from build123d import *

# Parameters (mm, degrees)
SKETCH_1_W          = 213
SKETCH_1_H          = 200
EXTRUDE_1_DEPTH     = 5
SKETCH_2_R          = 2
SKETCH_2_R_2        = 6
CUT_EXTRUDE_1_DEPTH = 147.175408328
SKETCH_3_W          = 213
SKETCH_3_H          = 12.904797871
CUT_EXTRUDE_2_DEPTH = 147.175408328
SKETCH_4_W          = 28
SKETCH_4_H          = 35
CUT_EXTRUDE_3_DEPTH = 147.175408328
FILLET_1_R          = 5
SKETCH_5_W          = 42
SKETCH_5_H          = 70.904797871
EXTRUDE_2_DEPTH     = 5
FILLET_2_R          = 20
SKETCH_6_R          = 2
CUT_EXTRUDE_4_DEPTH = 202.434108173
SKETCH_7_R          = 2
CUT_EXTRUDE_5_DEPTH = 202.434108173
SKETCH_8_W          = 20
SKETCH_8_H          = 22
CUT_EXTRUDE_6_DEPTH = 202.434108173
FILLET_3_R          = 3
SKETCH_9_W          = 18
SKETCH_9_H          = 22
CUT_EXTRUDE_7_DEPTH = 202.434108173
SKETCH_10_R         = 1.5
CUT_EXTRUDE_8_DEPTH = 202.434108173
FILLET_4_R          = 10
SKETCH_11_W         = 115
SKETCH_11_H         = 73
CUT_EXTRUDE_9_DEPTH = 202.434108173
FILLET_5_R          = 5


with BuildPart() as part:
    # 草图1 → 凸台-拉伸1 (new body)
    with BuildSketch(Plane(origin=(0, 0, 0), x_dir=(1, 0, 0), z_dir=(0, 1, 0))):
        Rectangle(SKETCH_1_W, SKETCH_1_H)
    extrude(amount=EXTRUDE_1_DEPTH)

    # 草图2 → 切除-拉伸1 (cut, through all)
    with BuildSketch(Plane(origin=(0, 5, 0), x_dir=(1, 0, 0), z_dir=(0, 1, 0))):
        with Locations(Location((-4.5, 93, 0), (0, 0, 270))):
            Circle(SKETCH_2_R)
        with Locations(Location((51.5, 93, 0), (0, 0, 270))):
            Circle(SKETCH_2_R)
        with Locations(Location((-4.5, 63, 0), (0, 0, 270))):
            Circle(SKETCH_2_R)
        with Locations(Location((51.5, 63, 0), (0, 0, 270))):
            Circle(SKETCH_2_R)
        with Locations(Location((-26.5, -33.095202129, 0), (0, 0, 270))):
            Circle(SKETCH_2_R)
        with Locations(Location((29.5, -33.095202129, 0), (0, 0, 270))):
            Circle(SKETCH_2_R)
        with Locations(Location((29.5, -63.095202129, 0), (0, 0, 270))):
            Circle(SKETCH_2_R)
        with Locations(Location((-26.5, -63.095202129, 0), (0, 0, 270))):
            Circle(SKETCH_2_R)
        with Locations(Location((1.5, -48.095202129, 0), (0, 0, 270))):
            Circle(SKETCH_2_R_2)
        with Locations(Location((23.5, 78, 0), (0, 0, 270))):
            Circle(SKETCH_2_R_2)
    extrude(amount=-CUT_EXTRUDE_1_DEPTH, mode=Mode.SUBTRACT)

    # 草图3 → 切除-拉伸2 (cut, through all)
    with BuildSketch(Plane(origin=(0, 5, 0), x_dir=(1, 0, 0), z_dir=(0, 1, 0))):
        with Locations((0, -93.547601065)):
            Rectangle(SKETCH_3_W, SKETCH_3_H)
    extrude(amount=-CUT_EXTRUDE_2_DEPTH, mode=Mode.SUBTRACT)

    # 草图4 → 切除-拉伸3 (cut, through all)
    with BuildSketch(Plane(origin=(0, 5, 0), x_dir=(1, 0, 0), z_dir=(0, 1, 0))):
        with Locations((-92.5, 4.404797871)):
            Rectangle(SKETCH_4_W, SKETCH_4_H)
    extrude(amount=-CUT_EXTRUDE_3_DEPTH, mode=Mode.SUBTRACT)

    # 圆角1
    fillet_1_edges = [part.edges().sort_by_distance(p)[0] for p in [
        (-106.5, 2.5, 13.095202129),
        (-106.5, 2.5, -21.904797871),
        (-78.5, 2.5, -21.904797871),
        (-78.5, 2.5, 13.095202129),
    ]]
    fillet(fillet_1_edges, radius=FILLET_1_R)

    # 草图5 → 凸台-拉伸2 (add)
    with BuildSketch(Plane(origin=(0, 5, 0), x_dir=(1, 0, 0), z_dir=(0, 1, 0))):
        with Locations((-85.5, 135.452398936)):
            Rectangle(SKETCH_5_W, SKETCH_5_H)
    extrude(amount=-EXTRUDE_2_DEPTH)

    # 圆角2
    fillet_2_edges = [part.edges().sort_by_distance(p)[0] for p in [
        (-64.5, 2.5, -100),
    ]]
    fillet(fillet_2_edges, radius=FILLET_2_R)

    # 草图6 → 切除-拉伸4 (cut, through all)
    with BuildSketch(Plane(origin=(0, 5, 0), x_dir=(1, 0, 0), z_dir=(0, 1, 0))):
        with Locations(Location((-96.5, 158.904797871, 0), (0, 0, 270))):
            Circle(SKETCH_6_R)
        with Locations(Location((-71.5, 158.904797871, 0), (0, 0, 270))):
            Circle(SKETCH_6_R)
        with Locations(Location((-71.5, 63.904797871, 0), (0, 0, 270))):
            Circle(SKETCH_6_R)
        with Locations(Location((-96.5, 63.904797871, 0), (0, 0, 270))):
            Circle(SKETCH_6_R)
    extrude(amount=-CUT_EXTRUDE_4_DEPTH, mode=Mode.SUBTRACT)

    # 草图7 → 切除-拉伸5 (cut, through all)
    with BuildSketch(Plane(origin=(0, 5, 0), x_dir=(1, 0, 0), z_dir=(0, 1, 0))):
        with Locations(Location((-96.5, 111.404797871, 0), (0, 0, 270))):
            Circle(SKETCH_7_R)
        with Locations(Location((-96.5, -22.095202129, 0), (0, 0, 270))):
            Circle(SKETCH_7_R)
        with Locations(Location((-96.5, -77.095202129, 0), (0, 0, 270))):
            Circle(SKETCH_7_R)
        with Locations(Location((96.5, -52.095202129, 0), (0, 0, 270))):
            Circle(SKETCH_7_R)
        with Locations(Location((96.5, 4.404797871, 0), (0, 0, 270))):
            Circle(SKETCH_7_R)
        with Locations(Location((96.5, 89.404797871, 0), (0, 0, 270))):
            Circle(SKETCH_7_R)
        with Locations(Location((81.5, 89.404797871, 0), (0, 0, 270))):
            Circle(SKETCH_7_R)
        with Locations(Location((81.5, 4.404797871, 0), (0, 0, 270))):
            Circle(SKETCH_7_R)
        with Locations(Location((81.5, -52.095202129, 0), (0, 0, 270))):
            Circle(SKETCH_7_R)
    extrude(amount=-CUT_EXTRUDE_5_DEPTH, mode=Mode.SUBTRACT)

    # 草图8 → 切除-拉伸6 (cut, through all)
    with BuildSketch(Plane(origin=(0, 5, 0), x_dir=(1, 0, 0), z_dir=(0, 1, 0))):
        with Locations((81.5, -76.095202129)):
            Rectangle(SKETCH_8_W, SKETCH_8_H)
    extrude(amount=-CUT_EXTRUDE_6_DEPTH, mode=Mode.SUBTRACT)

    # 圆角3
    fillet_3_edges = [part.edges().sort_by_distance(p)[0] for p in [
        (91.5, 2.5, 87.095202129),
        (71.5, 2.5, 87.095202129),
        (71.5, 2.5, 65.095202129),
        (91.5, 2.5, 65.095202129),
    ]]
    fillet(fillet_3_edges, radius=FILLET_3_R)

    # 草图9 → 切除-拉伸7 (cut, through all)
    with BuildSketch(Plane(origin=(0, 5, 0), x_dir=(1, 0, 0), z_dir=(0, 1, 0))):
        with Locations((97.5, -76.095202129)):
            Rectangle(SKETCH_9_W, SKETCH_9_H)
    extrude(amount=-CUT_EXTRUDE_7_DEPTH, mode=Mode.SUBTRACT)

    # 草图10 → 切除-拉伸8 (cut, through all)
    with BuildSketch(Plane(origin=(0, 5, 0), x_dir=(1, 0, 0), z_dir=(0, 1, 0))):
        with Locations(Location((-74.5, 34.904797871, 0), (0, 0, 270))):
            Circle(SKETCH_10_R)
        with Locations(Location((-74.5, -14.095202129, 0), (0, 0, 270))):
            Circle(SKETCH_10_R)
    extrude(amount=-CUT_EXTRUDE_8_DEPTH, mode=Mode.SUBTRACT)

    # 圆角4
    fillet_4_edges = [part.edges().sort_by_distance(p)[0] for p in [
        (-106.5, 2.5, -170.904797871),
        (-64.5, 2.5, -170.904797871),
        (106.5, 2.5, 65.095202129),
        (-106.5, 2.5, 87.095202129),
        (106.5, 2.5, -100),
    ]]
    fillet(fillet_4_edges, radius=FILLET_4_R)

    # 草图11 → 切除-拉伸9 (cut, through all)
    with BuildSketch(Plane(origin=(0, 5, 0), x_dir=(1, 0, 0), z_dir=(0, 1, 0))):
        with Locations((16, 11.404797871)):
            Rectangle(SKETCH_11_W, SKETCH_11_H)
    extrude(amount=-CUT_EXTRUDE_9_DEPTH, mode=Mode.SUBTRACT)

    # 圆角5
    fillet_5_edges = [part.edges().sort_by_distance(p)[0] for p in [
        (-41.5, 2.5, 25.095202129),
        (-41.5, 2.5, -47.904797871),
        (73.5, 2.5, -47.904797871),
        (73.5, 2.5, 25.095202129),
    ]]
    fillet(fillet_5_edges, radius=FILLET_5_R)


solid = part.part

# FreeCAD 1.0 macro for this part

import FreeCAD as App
import Part
import Sketcher

V = App.Vector


def edges_at(feature, points):
    """Names of the edges that pass closest to the given points."""
    edges = feature.Shape.Edges
    near = lambda p: min(range(len(edges)), key=lambda i: edges[i].distToShape(Part.Vertex(*p))[0])
    return sorted({f"Edge{near(p) + 1}" for p in points})


def add_polygon(sketch, points):
    """Adds a closed chain of lines whose ends are joined by coincident constraints."""
    first, n = sketch.GeometryCount, len(points)
    for a, b in zip(points, points[1:] + points[:1]):
        sketch.addGeometry(Part.LineSegment(App.Vector(*a, 0), App.Vector(*b, 0)), False)
    for i in range(n):
        sketch.addConstraint(Sketcher.Constraint("Coincident", first + i, 2, first + (i + 1) % n, 1))

doc = App.newDocument("Part")
body = doc.addObject("PartDesign::Body", "Body")

sketch1 = doc.addObject("Sketcher::SketchObject", "Sketch")
body.addObject(sketch1)
sketch1.AttachmentSupport = (doc.XZ_Plane, [""])
sketch1.MapMode = "FlatFace"
add_polygon(sketch1, [(-106.5, -100), (-106.5, 100), (106.5, 100), (106.5, -100)])
sketch1.addConstraint([
    Sketcher.Constraint("Vertical", 0),
    Sketcher.Constraint("Horizontal", 1),
    Sketcher.Constraint("Vertical", 2),
    Sketcher.Constraint("Horizontal", 3),
    Sketcher.Constraint("Symmetric", 0, 2, 2, 2, -1, 1),
    Sketcher.Constraint("DistanceX", 1, 1, 1, 2, 213.0),
    Sketcher.Constraint("DistanceY", 0, 1, 0, 2, 200.0),
])
pad1 = doc.addObject("PartDesign::Pad", "Pad")
body.addObject(pad1)
pad1.Profile = sketch1
pad1.Length = 5
pad1.Reversed = True

sketch2 = doc.addObject("Sketcher::SketchObject", "Sketch001")
body.addObject(sketch2)
sketch2.AttachmentSupport = (doc.XZ_Plane, [""])
sketch2.MapMode = "FlatFace"
sketch2.AttachmentOffset = App.Placement(V(0, 0, -5), App.Rotation())
sketch2.addGeometry([
    Part.Circle(V(-4.5, -93, 0), V(0, 0, 1), 2),
    Part.Circle(V(51.5, -93, 0), V(0, 0, 1), 2),
    Part.Circle(V(-4.5, -63, 0), V(0, 0, 1), 2),
    Part.Circle(V(51.5, -63, 0), V(0, 0, 1), 2),
    Part.Circle(V(-26.5, 33.095202, 0), V(0, 0, 1), 2),
    Part.Circle(V(29.5, 33.095202, 0), V(0, 0, 1), 2),
    Part.Circle(V(29.5, 63.095202, 0), V(0, 0, 1), 2),
    Part.Circle(V(-26.5, 63.095202, 0), V(0, 0, 1), 2),
    Part.Circle(V(1.5, 48.095202, 0), V(0, 0, 1), 6),
    Part.Circle(V(23.5, -78, 0), V(0, 0, 1), 6),
], False)
sketch2.addConstraint([
    Sketcher.Constraint("Equal", 0, 1),
    Sketcher.Constraint("Equal", 1, 2),
    Sketcher.Constraint("Equal", 2, 3),
    Sketcher.Constraint("Equal", 3, 4),
    Sketcher.Constraint("Equal", 4, 5),
    Sketcher.Constraint("Equal", 5, 6),
    Sketcher.Constraint("Equal", 6, 7),
    Sketcher.Constraint("Equal", 8, 9),
    Sketcher.Constraint("Horizontal", 0, 3, 1, 3),
    Sketcher.Constraint("Horizontal", 2, 3, 3, 3),
    Sketcher.Constraint("Horizontal", 4, 3, 5, 3),
    Sketcher.Constraint("Horizontal", 6, 3, 7, 3),
    Sketcher.Constraint("Vertical", 0, 3, 2, 3),
    Sketcher.Constraint("Vertical", 1, 3, 3, 3),
    Sketcher.Constraint("Vertical", 5, 3, 6, 3),
    Sketcher.Constraint("Vertical", 4, 3, 7, 3),
    Sketcher.Constraint("Diameter", 0, 4.0),
    Sketcher.Constraint("Diameter", 8, 12.0),
    Sketcher.Constraint("DistanceY", 0, 3, -1, 1, 93.0),
    Sketcher.Constraint("DistanceY", 2, 3, -1, 1, 63.0),
    Sketcher.Constraint("DistanceY", 9, 3, -1, 1, 78.0),
    Sketcher.Constraint("DistanceX", 0, 3, 1, 3, 56.0),
    Sketcher.Constraint("DistanceX", 4, 3, 2, 3, 22.0),
    Sketcher.Constraint("DistanceX", 4, 3, 5, 3, 56.0),
    Sketcher.Constraint("DistanceY", 5, 3, 6, 3, 30.0),
    Sketcher.Constraint("DistanceX", 4, 3, 8, 3, 28.0),
    Sketcher.Constraint("DistanceY", 4, 3, 8, 3, 15.0),
    Sketcher.Constraint("DistanceX", 0, 3, 9, 3, 28.0),
    Sketcher.Constraint("DistanceX", 0, 3, -1, 1, 4.5),
    Sketcher.Constraint("DistanceY", -1, 1, 4, 3, 33.095202),
])
pocket1 = doc.addObject("PartDesign::Pocket", "Pocket")
body.addObject(pocket1)
pocket1.Profile = sketch2
pocket1.Type = "ThroughAll"
pocket1.Reversed = True

sketch3 = doc.addObject("Sketcher::SketchObject", "Sketch002")
body.addObject(sketch3)
sketch3.AttachmentSupport = (doc.XZ_Plane, [""])
sketch3.MapMode = "FlatFace"
sketch3.AttachmentOffset = App.Placement(V(0, 0, -5), App.Rotation())
add_polygon(sketch3, [(-106.5, 87.095202), (-106.5, 100), (106.5, 100), (106.5, 87.095202)])
sketch3.addConstraint([
    Sketcher.Constraint("Vertical", 0),
    Sketcher.Constraint("Horizontal", 1),
    Sketcher.Constraint("Vertical", 2),
    Sketcher.Constraint("Horizontal", 3),
    Sketcher.Constraint("DistanceX", 1, 1, 1, 2, 213.0),
    Sketcher.Constraint("DistanceY", -1, 1, 0, 2, 100.0),
    Sketcher.Constraint("DistanceX", 0, 2, -1, 1, 106.5),
    Sketcher.Constraint("DistanceY", 0, 1, 0, 2, 12.904798),
])
pocket2 = doc.addObject("PartDesign::Pocket", "Pocket001")
body.addObject(pocket2)
pocket2.Profile = sketch3
pocket2.Type = "ThroughAll"
pocket2.Reversed = True

sketch4 = doc.addObject("Sketcher::SketchObject", "Sketch003")
body.addObject(sketch4)
sketch4.AttachmentSupport = (doc.XZ_Plane, [""])
sketch4.MapMode = "FlatFace"
sketch4.AttachmentOffset = App.Placement(V(0, 0, -5), App.Rotation())
add_polygon(sketch4, [(-106.5, -21.904798), (-106.5, 13.095202), (-78.5, 13.095202), (-78.5, -21.904798)])
sketch4.addConstraint([
    Sketcher.Constraint("Vertical", 0),
    Sketcher.Constraint("Horizontal", 1),
    Sketcher.Constraint("Vertical", 2),
    Sketcher.Constraint("Horizontal", 3),
    Sketcher.Constraint("DistanceX", 1, 1, 1, 2, 28.0),
    Sketcher.Constraint("DistanceY", 0, 1, 0, 2, 35.0),
    Sketcher.Constraint("DistanceX", 0, 2, -1, 1, 106.5),
    Sketcher.Constraint("DistanceY", -1, 1, 0, 2, 13.095202),
])
pocket3 = doc.addObject("PartDesign::Pocket", "Pocket002")
body.addObject(pocket3)
pocket3.Profile = sketch4
pocket3.Type = "ThroughAll"
pocket3.Reversed = True
doc.recompute()

fillet = doc.addObject("PartDesign::Fillet", "Fillet")
body.addObject(fillet)
fillet.Base = (pocket3, edges_at(pocket3, [
    (-106.5, 2.5, 13.095),
    (-106.5, 2.5, -21.905),
    (-78.5, 2.5, -21.905),
    (-78.5, 2.5, 13.095),
]))
fillet.Radius = 5

sketch5 = doc.addObject("Sketcher::SketchObject", "Sketch004")
body.addObject(sketch5)
sketch5.AttachmentSupport = (doc.XZ_Plane, [""])
sketch5.MapMode = "FlatFace"
sketch5.AttachmentOffset = App.Placement(V(0, 0, -5), App.Rotation())
add_polygon(sketch5, [(-106.5, -170.904798), (-106.5, -100), (-64.5, -100), (-64.5, -170.904798)])
sketch5.addConstraint([
    Sketcher.Constraint("Vertical", 0),
    Sketcher.Constraint("Horizontal", 1),
    Sketcher.Constraint("Vertical", 2),
    Sketcher.Constraint("Horizontal", 3),
    Sketcher.Constraint("DistanceX", 1, 1, 1, 2, 42.0),
    Sketcher.Constraint("DistanceY", 0, 2, -1, 1, 100.0),
    Sketcher.Constraint("DistanceX", 0, 2, -1, 1, 106.5),
    Sketcher.Constraint("DistanceY", 0, 1, 0, 2, 70.904798),
])
pad2 = doc.addObject("PartDesign::Pad", "Pad001")
body.addObject(pad2)
pad2.Profile = sketch5
pad2.Length = 5
doc.recompute()

fillet2 = doc.addObject("PartDesign::Fillet", "Fillet001")
body.addObject(fillet2)
fillet2.Base = (pad2, edges_at(pad2, [(-64.5, 2.5, -100)]))
fillet2.Radius = 20

sketch6 = doc.addObject("Sketcher::SketchObject", "Sketch005")
body.addObject(sketch6)
sketch6.AttachmentSupport = (doc.XZ_Plane, [""])
sketch6.MapMode = "FlatFace"
sketch6.AttachmentOffset = App.Placement(V(0, 0, -5), App.Rotation())
sketch6.addGeometry([
    Part.Circle(V(-96.5, -158.904798, 0), V(0, 0, 1), 2),
    Part.Circle(V(-71.5, -158.904798, 0), V(0, 0, 1), 2),
    Part.Circle(V(-71.5, -63.904798, 0), V(0, 0, 1), 2),
    Part.Circle(V(-96.5, -63.904798, 0), V(0, 0, 1), 2),
], False)
sketch6.addConstraint([
    Sketcher.Constraint("Equal", 0, 1),
    Sketcher.Constraint("Equal", 1, 2),
    Sketcher.Constraint("Equal", 2, 3),
    Sketcher.Constraint("Horizontal", 0, 3, 1, 3),
    Sketcher.Constraint("Horizontal", 2, 3, 3, 3),
    Sketcher.Constraint("Vertical", 1, 3, 2, 3),
    Sketcher.Constraint("Vertical", 0, 3, 3, 3),
    Sketcher.Constraint("Diameter", 0, 4.0),
    Sketcher.Constraint("DistanceX", 0, 3, 1, 3, 25.0),
    Sketcher.Constraint("DistanceY", 1, 3, 2, 3, 95.0),
    Sketcher.Constraint("DistanceX", 0, 3, -1, 1, 96.5),
    Sketcher.Constraint("DistanceY", 0, 3, -1, 1, 158.904798),
])
pocket4 = doc.addObject("PartDesign::Pocket", "Pocket003")
body.addObject(pocket4)
pocket4.Profile = sketch6
pocket4.Type = "ThroughAll"
pocket4.Reversed = True

sketch7 = doc.addObject("Sketcher::SketchObject", "Sketch006")
body.addObject(sketch7)
sketch7.AttachmentSupport = (doc.XZ_Plane, [""])
sketch7.MapMode = "FlatFace"
sketch7.AttachmentOffset = App.Placement(V(0, 0, -5), App.Rotation())
sketch7.addGeometry([
    Part.Circle(V(-96.5, -111.404798, 0), V(0, 0, 1), 2),
    Part.Circle(V(-96.5, 22.095202, 0), V(0, 0, 1), 2),
    Part.Circle(V(-96.5, 77.095202, 0), V(0, 0, 1), 2),
    Part.Circle(V(96.5, 52.095202, 0), V(0, 0, 1), 2),
    Part.Circle(V(96.5, -4.404798, 0), V(0, 0, 1), 2),
    Part.Circle(V(96.5, -89.404798, 0), V(0, 0, 1), 2),
    Part.Circle(V(81.5, -89.404798, 0), V(0, 0, 1), 2),
    Part.Circle(V(81.5, -4.404798, 0), V(0, 0, 1), 2),
    Part.Circle(V(81.5, 52.095202, 0), V(0, 0, 1), 2),
], False)
sketch7.addConstraint([
    Sketcher.Constraint("Equal", 0, 1),
    Sketcher.Constraint("Equal", 1, 2),
    Sketcher.Constraint("Equal", 2, 3),
    Sketcher.Constraint("Equal", 3, 4),
    Sketcher.Constraint("Equal", 4, 5),
    Sketcher.Constraint("Equal", 5, 6),
    Sketcher.Constraint("Equal", 6, 7),
    Sketcher.Constraint("Equal", 7, 8),
    Sketcher.Constraint("Horizontal", 5, 3, 6, 3),
    Sketcher.Constraint("Horizontal", 4, 3, 7, 3),
    Sketcher.Constraint("Horizontal", 3, 3, 8, 3),
    Sketcher.Constraint("Vertical", 0, 3, 1, 3),
    Sketcher.Constraint("Vertical", 1, 3, 2, 3),
    Sketcher.Constraint("Vertical", 3, 3, 4, 3),
    Sketcher.Constraint("Vertical", 4, 3, 5, 3),
    Sketcher.Constraint("Vertical", 6, 3, 7, 3),
    Sketcher.Constraint("Vertical", 7, 3, 8, 3),
    Sketcher.Constraint("Diameter", 0, 4.0),
    Sketcher.Constraint("DistanceY", 1, 3, 2, 3, 55.0),
    Sketcher.Constraint("DistanceX", 2, 3, 3, 3, 193.0),
    Sketcher.Constraint("DistanceY", 3, 3, 2, 3, 25.0),
    Sketcher.Constraint("DistanceY", 0, 3, 4, 3, 107.0),
    Sketcher.Constraint("DistanceY", 5, 3, 4, 3, 85.0),
    Sketcher.Constraint("DistanceX", 6, 3, 5, 3, 15.0),
    Sketcher.Constraint("DistanceX", 0, 3, -1, 1, 96.5),
    Sketcher.Constraint("DistanceY", 0, 3, 1, 3, 133.5),
    Sketcher.Constraint("DistanceY", 0, 3, -1, 1, 111.404798),
])
pocket5 = doc.addObject("PartDesign::Pocket", "Pocket004")
body.addObject(pocket5)
pocket5.Profile = sketch7
pocket5.Type = "ThroughAll"
pocket5.Reversed = True

sketch8 = doc.addObject("Sketcher::SketchObject", "Sketch007")
body.addObject(sketch8)
sketch8.AttachmentSupport = (doc.XZ_Plane, [""])
sketch8.MapMode = "FlatFace"
sketch8.AttachmentOffset = App.Placement(V(0, 0, -5), App.Rotation())
add_polygon(sketch8, [(71.5, 65.095202), (71.5, 87.095202), (91.5, 87.095202), (91.5, 65.095202)])
sketch8.addConstraint([
    Sketcher.Constraint("Vertical", 0),
    Sketcher.Constraint("Horizontal", 1),
    Sketcher.Constraint("Vertical", 2),
    Sketcher.Constraint("Horizontal", 3),
    Sketcher.Constraint("DistanceX", 1, 1, 1, 2, 20.0),
    Sketcher.Constraint("DistanceY", 0, 1, 0, 2, 22.0),
    Sketcher.Constraint("DistanceX", -1, 1, 0, 2, 71.5),
    Sketcher.Constraint("DistanceY", -1, 1, 0, 2, 87.095202),
])
pocket6 = doc.addObject("PartDesign::Pocket", "Pocket005")
body.addObject(pocket6)
pocket6.Profile = sketch8
pocket6.Type = "ThroughAll"
pocket6.Reversed = True
doc.recompute()

fillet3 = doc.addObject("PartDesign::Fillet", "Fillet002")
body.addObject(fillet3)
fillet3.Base = (pocket6, edges_at(pocket6, [
    (91.5, 2.5, 87.095),
    (71.5, 2.5, 87.095),
    (71.5, 2.5, 65.095),
    (91.5, 2.5, 65.095),
]))
fillet3.Radius = 3

sketch9 = doc.addObject("Sketcher::SketchObject", "Sketch008")
body.addObject(sketch9)
sketch9.AttachmentSupport = (doc.XZ_Plane, [""])
sketch9.MapMode = "FlatFace"
sketch9.AttachmentOffset = App.Placement(V(0, 0, -5), App.Rotation())
add_polygon(sketch9, [(88.5, 65.095202), (88.5, 87.095202), (106.5, 87.095202), (106.5, 65.095202)])
sketch9.addConstraint([
    Sketcher.Constraint("Vertical", 0),
    Sketcher.Constraint("Horizontal", 1),
    Sketcher.Constraint("Vertical", 2),
    Sketcher.Constraint("Horizontal", 3),
    Sketcher.Constraint("DistanceX", 1, 1, 1, 2, 18.0),
    Sketcher.Constraint("DistanceY", 0, 1, 0, 2, 22.0),
    Sketcher.Constraint("DistanceX", -1, 1, 0, 2, 88.5),
    Sketcher.Constraint("DistanceY", -1, 1, 0, 2, 87.095202),
])
pocket7 = doc.addObject("PartDesign::Pocket", "Pocket006")
body.addObject(pocket7)
pocket7.Profile = sketch9
pocket7.Type = "ThroughAll"
pocket7.Reversed = True

sketch10 = doc.addObject("Sketcher::SketchObject", "Sketch009")
body.addObject(sketch10)
sketch10.AttachmentSupport = (doc.XZ_Plane, [""])
sketch10.MapMode = "FlatFace"
sketch10.AttachmentOffset = App.Placement(V(0, 0, -5), App.Rotation())
sketch10.addGeometry([
    Part.Circle(V(-74.5, -34.904798, 0), V(0, 0, 1), 1.5),
    Part.Circle(V(-74.5, 14.095202, 0), V(0, 0, 1), 1.5),
], False)
sketch10.addConstraint([
    Sketcher.Constraint("Equal", 0, 1),
    Sketcher.Constraint("Vertical", 0, 3, 1, 3),
    Sketcher.Constraint("Diameter", 0, 3.0),
    Sketcher.Constraint("DistanceY", 0, 3, 1, 3, 49.0),
    Sketcher.Constraint("DistanceX", 0, 3, -1, 1, 74.5),
    Sketcher.Constraint("DistanceY", 0, 3, -1, 1, 34.904798),
])
pocket8 = doc.addObject("PartDesign::Pocket", "Pocket007")
body.addObject(pocket8)
pocket8.Profile = sketch10
pocket8.Type = "ThroughAll"
pocket8.Reversed = True
doc.recompute()

fillet4 = doc.addObject("PartDesign::Fillet", "Fillet003")
body.addObject(fillet4)
fillet4.Base = (pocket8, edges_at(pocket8, [
    (-106.5, 2.5, -170.905),
    (-64.5, 2.5, -170.905),
    (106.5, 2.5, 65.095),
    (-106.5, 2.5, 87.095),
    (106.5, 2.5, -100),
]))
fillet4.Radius = 10

sketch11 = doc.addObject("Sketcher::SketchObject", "Sketch010")
body.addObject(sketch11)
sketch11.AttachmentSupport = (doc.XZ_Plane, [""])
sketch11.MapMode = "FlatFace"
sketch11.AttachmentOffset = App.Placement(V(0, 0, -5), App.Rotation())
add_polygon(sketch11, [(-41.5, -47.904798), (-41.5, 25.095202), (73.5, 25.095202), (73.5, -47.904798)])
sketch11.addConstraint([
    Sketcher.Constraint("Vertical", 0),
    Sketcher.Constraint("Horizontal", 1),
    Sketcher.Constraint("Vertical", 2),
    Sketcher.Constraint("Horizontal", 3),
    Sketcher.Constraint("DistanceX", 1, 1, 1, 2, 115.0),
    Sketcher.Constraint("DistanceY", 0, 1, 0, 2, 73.0),
    Sketcher.Constraint("DistanceX", 0, 2, -1, 1, 41.5),
    Sketcher.Constraint("DistanceY", -1, 1, 0, 2, 25.095202),
])
pocket9 = doc.addObject("PartDesign::Pocket", "Pocket008")
body.addObject(pocket9)
pocket9.Profile = sketch11
pocket9.Type = "ThroughAll"
pocket9.Reversed = True
doc.recompute()

fillet5 = doc.addObject("PartDesign::Fillet", "Fillet004")
body.addObject(fillet5)
fillet5.Base = (pocket9, edges_at(pocket9, [
    (-41.5, 2.5, 25.095),
    (-41.5, 2.5, -47.905),
    (73.5, 2.5, -47.905),
    (73.5, 2.5, 25.095),
]))
fillet5.Radius = 5

doc.recompute()
